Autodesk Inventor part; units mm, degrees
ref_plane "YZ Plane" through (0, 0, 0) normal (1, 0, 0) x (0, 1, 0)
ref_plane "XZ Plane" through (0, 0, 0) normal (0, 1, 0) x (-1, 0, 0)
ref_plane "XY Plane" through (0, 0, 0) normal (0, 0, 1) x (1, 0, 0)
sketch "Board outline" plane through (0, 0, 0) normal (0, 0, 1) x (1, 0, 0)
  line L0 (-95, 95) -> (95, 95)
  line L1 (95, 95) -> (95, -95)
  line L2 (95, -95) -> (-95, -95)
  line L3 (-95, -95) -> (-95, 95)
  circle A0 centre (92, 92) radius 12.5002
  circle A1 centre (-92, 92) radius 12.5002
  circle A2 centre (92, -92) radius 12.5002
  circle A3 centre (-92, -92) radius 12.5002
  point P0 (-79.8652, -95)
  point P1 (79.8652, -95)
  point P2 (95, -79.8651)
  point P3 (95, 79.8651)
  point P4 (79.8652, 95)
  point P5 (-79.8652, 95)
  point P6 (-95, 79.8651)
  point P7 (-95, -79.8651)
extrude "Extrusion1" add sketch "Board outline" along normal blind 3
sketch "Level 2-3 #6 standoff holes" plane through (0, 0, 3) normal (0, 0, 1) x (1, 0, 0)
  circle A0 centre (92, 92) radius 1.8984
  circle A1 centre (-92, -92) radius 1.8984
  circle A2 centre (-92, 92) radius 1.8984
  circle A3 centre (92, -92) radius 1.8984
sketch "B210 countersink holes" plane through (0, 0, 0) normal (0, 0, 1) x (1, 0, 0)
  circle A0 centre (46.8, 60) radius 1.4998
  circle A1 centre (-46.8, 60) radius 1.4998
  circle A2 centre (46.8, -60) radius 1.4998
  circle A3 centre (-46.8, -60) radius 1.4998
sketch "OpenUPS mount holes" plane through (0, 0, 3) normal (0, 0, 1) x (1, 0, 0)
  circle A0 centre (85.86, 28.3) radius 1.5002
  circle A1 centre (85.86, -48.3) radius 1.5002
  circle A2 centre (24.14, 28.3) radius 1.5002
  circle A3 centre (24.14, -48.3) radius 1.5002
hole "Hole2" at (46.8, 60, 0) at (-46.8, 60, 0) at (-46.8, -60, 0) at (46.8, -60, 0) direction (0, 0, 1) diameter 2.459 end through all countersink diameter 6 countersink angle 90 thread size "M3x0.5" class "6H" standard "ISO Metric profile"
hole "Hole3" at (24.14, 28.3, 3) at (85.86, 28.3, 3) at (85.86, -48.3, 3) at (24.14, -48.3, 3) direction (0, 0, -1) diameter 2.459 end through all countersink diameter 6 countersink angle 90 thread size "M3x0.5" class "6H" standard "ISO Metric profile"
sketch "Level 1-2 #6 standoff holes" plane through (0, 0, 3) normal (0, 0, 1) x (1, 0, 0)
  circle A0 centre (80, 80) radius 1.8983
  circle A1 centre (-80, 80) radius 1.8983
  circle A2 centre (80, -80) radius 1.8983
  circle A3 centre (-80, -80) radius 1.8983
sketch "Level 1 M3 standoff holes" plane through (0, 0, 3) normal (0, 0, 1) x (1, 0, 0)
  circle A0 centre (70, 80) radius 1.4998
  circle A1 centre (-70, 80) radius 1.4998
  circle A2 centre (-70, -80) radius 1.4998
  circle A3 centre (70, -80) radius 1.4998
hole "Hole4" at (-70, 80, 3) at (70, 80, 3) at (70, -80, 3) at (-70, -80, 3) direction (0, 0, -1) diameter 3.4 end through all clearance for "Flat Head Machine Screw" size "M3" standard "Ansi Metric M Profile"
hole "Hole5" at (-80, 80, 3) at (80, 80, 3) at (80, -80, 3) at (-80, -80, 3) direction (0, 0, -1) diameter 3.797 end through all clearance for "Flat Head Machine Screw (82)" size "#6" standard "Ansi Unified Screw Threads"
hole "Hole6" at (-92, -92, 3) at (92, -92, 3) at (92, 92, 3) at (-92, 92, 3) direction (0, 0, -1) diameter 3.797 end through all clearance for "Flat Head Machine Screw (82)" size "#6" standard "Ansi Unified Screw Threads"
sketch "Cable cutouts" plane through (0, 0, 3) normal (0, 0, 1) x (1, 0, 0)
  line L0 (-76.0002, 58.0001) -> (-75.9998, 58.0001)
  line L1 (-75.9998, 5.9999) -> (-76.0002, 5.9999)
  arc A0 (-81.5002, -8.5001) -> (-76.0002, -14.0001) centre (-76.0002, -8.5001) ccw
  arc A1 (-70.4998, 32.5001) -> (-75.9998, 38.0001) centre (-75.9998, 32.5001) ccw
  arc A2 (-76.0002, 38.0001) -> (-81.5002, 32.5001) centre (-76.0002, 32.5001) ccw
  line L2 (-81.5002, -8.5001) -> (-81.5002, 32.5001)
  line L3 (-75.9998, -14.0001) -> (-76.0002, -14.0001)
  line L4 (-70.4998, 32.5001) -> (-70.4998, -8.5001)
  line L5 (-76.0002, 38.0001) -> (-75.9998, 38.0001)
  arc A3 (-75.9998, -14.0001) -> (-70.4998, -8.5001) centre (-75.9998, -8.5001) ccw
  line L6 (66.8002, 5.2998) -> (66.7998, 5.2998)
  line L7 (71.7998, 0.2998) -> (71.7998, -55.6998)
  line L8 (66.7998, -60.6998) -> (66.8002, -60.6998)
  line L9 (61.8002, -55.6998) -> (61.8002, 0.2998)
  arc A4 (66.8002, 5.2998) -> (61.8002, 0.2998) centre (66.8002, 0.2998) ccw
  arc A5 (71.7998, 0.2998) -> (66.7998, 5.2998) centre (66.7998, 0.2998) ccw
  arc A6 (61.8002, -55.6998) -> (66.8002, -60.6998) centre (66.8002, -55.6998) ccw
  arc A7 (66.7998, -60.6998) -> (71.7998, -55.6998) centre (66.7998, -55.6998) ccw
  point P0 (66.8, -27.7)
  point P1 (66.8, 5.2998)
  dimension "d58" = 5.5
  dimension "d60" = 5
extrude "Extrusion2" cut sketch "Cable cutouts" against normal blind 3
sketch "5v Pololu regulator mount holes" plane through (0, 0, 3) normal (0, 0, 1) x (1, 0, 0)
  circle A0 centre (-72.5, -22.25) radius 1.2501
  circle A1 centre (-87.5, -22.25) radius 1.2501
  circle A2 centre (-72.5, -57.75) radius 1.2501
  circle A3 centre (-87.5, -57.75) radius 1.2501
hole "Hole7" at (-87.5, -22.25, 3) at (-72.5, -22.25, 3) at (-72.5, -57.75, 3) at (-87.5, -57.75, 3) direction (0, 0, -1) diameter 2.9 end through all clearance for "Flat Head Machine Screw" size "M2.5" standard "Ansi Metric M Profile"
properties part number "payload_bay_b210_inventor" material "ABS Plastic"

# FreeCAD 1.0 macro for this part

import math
import FreeCAD as App
import Part
import Sketcher

doc = App.newDocument("Part")
body = doc.addObject("PartDesign::Body", "Body")

sketch1 = body.newObject("Sketcher::SketchObject", "Sketch")
sketch1.AttachmentSupport = (doc.getObject("XY_Plane"), [""])
sketch1.MapMode = "FlatFace"
sketch1.addGeometry([
    Part.ArcOfCircle(Part.Circle(App.Vector(-92, 92, 0), App.Vector(0, 0, 1), 13), math.radians(14), math.radians(256)),
    Part.LineSegment(App.Vector(-95, 80, 0), App.Vector(-95, -80, 0)),
    Part.ArcOfCircle(Part.Circle(App.Vector(-92, -92, 0), App.Vector(0, 0, 1), 13), math.radians(104), math.radians(346)),
    Part.LineSegment(App.Vector(-80, -95, 0), App.Vector(80, -95, 0)),
    Part.ArcOfCircle(Part.Circle(App.Vector(92, -92, 0), App.Vector(0, 0, 1), 13), math.radians(-166), math.radians(76)),
    Part.LineSegment(App.Vector(95, -80, 0), App.Vector(95, 80, 0)),
    Part.ArcOfCircle(Part.Circle(App.Vector(92, 92, 0), App.Vector(0, 0, 1), 13), math.radians(-76), math.radians(166)),
    Part.LineSegment(App.Vector(80, 95, 0), App.Vector(-80, 95, 0)),
], False)
sketch1.addConstraint([
    Sketcher.Constraint("Coincident", 0, 2, 1, 1),
    Sketcher.Constraint("Coincident", 1, 2, 2, 1),
    Sketcher.Constraint("Coincident", 2, 2, 3, 1),
    Sketcher.Constraint("Coincident", 3, 2, 4, 1),
    Sketcher.Constraint("Coincident", 4, 2, 5, 1),
    Sketcher.Constraint("Coincident", 5, 2, 6, 1),
    Sketcher.Constraint("Coincident", 6, 2, 7, 1),
    Sketcher.Constraint("Coincident", 7, 2, 0, 1),
    Sketcher.Constraint("Vertical", 1),
    Sketcher.Constraint("Horizontal", 3),
    Sketcher.Constraint("Vertical", 5),
    Sketcher.Constraint("Horizontal", 7),
    Sketcher.Constraint("Equal", 0, 2),
    Sketcher.Constraint("Equal", 2, 4),
    Sketcher.Constraint("Equal", 4, 6),
    Sketcher.Constraint("Symmetric", 0, 3, 4, 3, -1, 1),
    Sketcher.Constraint("Symmetric", 2, 3, 6, 3, -1, 1),
    Sketcher.Constraint("Symmetric", 2, 3, 4, 3, -2),
    Sketcher.Constraint("Horizontal", 1, 2, 4, 2),
    Sketcher.Constraint("Vertical", 3, 2, 6, 2),
    Sketcher.Constraint("Equal", 7, 1),
    Sketcher.Constraint("DistanceX", 0, 3, -1, 1, 92.0),
    Sketcher.Constraint("DistanceY", -1, 1, 0, 3, 92.0),
    Sketcher.Constraint("DistanceX", 0, 2, -1, 1, 95.0),
    Sketcher.Constraint("Radius", 0, 12.5002),
])
pad1 = body.newObject("PartDesign::Pad", "Pad")
pad1.Profile = sketch1
pad1.Length = 3

sketch2 = body.newObject("Sketcher::SketchObject", "Sketch001")
sketch2.AttachmentSupport = (doc.getObject("XY_Plane"), [""])
sketch2.MapMode = "FlatFace"
sketch2.addGeometry([
    Part.Circle(App.Vector(46.8, 60, 0), App.Vector(0, 0, 1), 1.2),
    Part.Circle(App.Vector(-46.8, 60, 0), App.Vector(0, 0, 1), 1.2),
    Part.Circle(App.Vector(-46.8, -60, 0), App.Vector(0, 0, 1), 1.2),
    Part.Circle(App.Vector(46.8, -60, 0), App.Vector(0, 0, 1), 1.2),
], False)
sketch2.addConstraint([
    Sketcher.Constraint("Equal", 0, 1),
    Sketcher.Constraint("Equal", 1, 2),
    Sketcher.Constraint("Equal", 2, 3),
    Sketcher.Constraint("Symmetric", 0, 3, 2, 3, -1, 1),
    Sketcher.Constraint("Symmetric", 1, 3, 3, 3, -1, 1),
    Sketcher.Constraint("Symmetric", 0, 3, 1, 3, -2),
    Sketcher.Constraint("Diameter", 0, 2.459),
    Sketcher.Constraint("DistanceY", -1, 1, 0, 3, 60.0),
    Sketcher.Constraint("DistanceX", -1, 1, 0, 3, 46.8),
])
doc.recompute()
hole = body.newObject("PartDesign::Hole", "Hole")
hole.Profile = sketch2
hole.ThreadType = "None"
hole.Diameter = 2.459
hole.DepthType = "ThroughAll"
hole.HoleCutType = "Countersink"
hole.HoleCutDiameter = 6
hole.HoleCutCountersinkAngle = 90
hole.Reversed = True

sketch3 = body.newObject("Sketcher::SketchObject", "Sketch002")
sketch3.AttachmentSupport = (doc.getObject("XY_Plane"), [""])
sketch3.MapMode = "FlatFace"
sketch3.AttachmentOffset = App.Placement(App.Vector(0, 0, 3), App.Rotation())
sketch3.addGeometry([
    Part.Circle(App.Vector(24.1, 28.3, 0), App.Vector(0, 0, 1), 1.2),
    Part.Circle(App.Vector(85.9, 28.3, 0), App.Vector(0, 0, 1), 1.2),
    Part.Circle(App.Vector(85.9, -48.3, 0), App.Vector(0, 0, 1), 1.2),
    Part.Circle(App.Vector(24.1, -48.3, 0), App.Vector(0, 0, 1), 1.2),
], False)
sketch3.addConstraint([
    Sketcher.Constraint("Equal", 0, 1),
    Sketcher.Constraint("Equal", 1, 2),
    Sketcher.Constraint("Equal", 2, 3),
    Sketcher.Constraint("Horizontal", 0, 3, 1, 3),
    Sketcher.Constraint("Horizontal", 2, 3, 3, 3),
    Sketcher.Constraint("Vertical", 1, 3, 2, 3),
    Sketcher.Constraint("Vertical", 0, 3, 3, 3),
    Sketcher.Constraint("Diameter", 0, 2.459),
    Sketcher.Constraint("DistanceY", -1, 1, 0, 3, 28.3),
    Sketcher.Constraint("DistanceY", 2, 3, -1, 1, 48.3),
    Sketcher.Constraint("DistanceX", -1, 1, 0, 3, 24.14),
    Sketcher.Constraint("DistanceX", -1, 1, 1, 3, 85.86),
])
doc.recompute()
hole2 = body.newObject("PartDesign::Hole", "Hole001")
hole2.Profile = sketch3
hole2.ThreadType = "None"
hole2.Diameter = 2.459
hole2.DepthType = "ThroughAll"
hole2.HoleCutType = "Countersink"
hole2.HoleCutDiameter = 6
hole2.HoleCutCountersinkAngle = 90

sketch4 = body.newObject("Sketcher::SketchObject", "Sketch003")
sketch4.AttachmentSupport = (doc.getObject("XY_Plane"), [""])
sketch4.MapMode = "FlatFace"
sketch4.AttachmentOffset = App.Placement(App.Vector(0, 0, 3), App.Rotation())
sketch4.addGeometry([
    Part.Circle(App.Vector(-70, 80, 0), App.Vector(0, 0, 1), 1.7),
    Part.Circle(App.Vector(70, 80, 0), App.Vector(0, 0, 1), 1.7),
    Part.Circle(App.Vector(70, -80, 0), App.Vector(0, 0, 1), 1.7),
    Part.Circle(App.Vector(-70, -80, 0), App.Vector(0, 0, 1), 1.7),
], False)
sketch4.addConstraint([
    Sketcher.Constraint("Equal", 0, 1),
    Sketcher.Constraint("Equal", 1, 2),
    Sketcher.Constraint("Equal", 2, 3),
    Sketcher.Constraint("Symmetric", 0, 3, 2, 3, -1, 1),
    Sketcher.Constraint("Symmetric", 1, 3, 3, 3, -1, 1),
    Sketcher.Constraint("Symmetric", 0, 3, 1, 3, -2),
    Sketcher.Constraint("Diameter", 0, 3.4),
    Sketcher.Constraint("DistanceX", 0, 3, -1, 1, 70.0),
    Sketcher.Constraint("DistanceY", -1, 1, 0, 3, 80.0),
])
doc.recompute()
hole3 = body.newObject("PartDesign::Hole", "Hole002")
hole3.Profile = sketch4
hole3.ThreadType = "None"
hole3.Diameter = 3.4
hole3.DepthType = "ThroughAll"

sketch5 = body.newObject("Sketcher::SketchObject", "Sketch004")
sketch5.AttachmentSupport = (doc.getObject("XY_Plane"), [""])
sketch5.MapMode = "FlatFace"
sketch5.AttachmentOffset = App.Placement(App.Vector(0, 0, 3), App.Rotation())
sketch5.addGeometry([
    Part.Circle(App.Vector(-80, 80, 0), App.Vector(0, 0, 1), 1.9),
    Part.Circle(App.Vector(80, 80, 0), App.Vector(0, 0, 1), 1.9),
    Part.Circle(App.Vector(80, -80, 0), App.Vector(0, 0, 1), 1.9),
    Part.Circle(App.Vector(-80, -80, 0), App.Vector(0, 0, 1), 1.9),
], False)
sketch5.addConstraint([
    Sketcher.Constraint("Equal", 0, 1),
    Sketcher.Constraint("Equal", 1, 2),
    Sketcher.Constraint("Equal", 2, 3),
    Sketcher.Constraint("Symmetric", 0, 3, 2, 3, -1, 1),
    Sketcher.Constraint("Symmetric", 1, 3, 3, 3, -1, 1),
    Sketcher.Constraint("Symmetric", 0, 3, 1, 3, -2),
    Sketcher.Constraint("Diameter", 0, 3.797),
    Sketcher.Constraint("DistanceX", 0, 3, -1, 1, 80.0),
    Sketcher.Constraint("DistanceY", -1, 1, 0, 3, 80.0),
])
doc.recompute()
hole4 = body.newObject("PartDesign::Hole", "Hole003")
hole4.Profile = sketch5
hole4.ThreadType = "None"
hole4.Diameter = 3.797
hole4.DepthType = "ThroughAll"

sketch6 = body.newObject("Sketcher::SketchObject", "Sketch005")
sketch6.AttachmentSupport = (doc.getObject("XY_Plane"), [""])
sketch6.MapMode = "FlatFace"
sketch6.AttachmentOffset = App.Placement(App.Vector(0, 0, 3), App.Rotation())
sketch6.addGeometry([
    Part.Circle(App.Vector(-92, -92, 0), App.Vector(0, 0, 1), 1.9),
    Part.Circle(App.Vector(92, -92, 0), App.Vector(0, 0, 1), 1.9),
    Part.Circle(App.Vector(92, 92, 0), App.Vector(0, 0, 1), 1.9),
    Part.Circle(App.Vector(-92, 92, 0), App.Vector(0, 0, 1), 1.9),
], False)
sketch6.addConstraint([
    Sketcher.Constraint("Equal", 0, 1),
    Sketcher.Constraint("Equal", 1, 2),
    Sketcher.Constraint("Equal", 2, 3),
    Sketcher.Constraint("Symmetric", 0, 3, 2, 3, -1, 1),
    Sketcher.Constraint("Symmetric", 1, 3, 3, 3, -1, 1),
    Sketcher.Constraint("Symmetric", 0, 3, 1, 3, -2),
    Sketcher.Constraint("Diameter", 0, 3.797),
    Sketcher.Constraint("DistanceX", 0, 3, -1, 1, 92.0),
    Sketcher.Constraint("DistanceY", 0, 3, -1, 1, 92.0),
])
doc.recompute()
hole5 = body.newObject("PartDesign::Hole", "Hole004")
hole5.Profile = sketch6
hole5.ThreadType = "None"
hole5.Diameter = 3.797
hole5.DepthType = "ThroughAll"

sketch7 = body.newObject("Sketcher::SketchObject", "Sketch006")
sketch7.AttachmentSupport = (doc.getObject("XY_Plane"), [""])
sketch7.MapMode = "FlatFace"
sketch7.AttachmentOffset = App.Placement(App.Vector(0, 0, 3), App.Rotation())
sketch7.addGeometry([
    Part.LineSegment(App.Vector(-82, 33, 0), App.Vector(-82, -9, 0)),
    Part.ArcOfCircle(Part.Circle(App.Vector(-76, -9, 0), App.Vector(0, 0, 1), 6), math.radians(180), math.radians(270)),
    Part.ArcOfCircle(Part.Circle(App.Vector(-76, -9, 0), App.Vector(0, 0, 1), 6), math.radians(-90), math.radians(0)),
    Part.LineSegment(App.Vector(-70, -9, 0), App.Vector(-70, 33, 0)),
    Part.ArcOfCircle(Part.Circle(App.Vector(-76, 33, 0), App.Vector(0, 0, 1), 6), math.radians(0), math.radians(90)),
    Part.ArcOfCircle(Part.Circle(App.Vector(-76, 33, 0), App.Vector(0, 0, 1), 6), math.radians(90), math.radians(180)),
    Part.LineSegment(App.Vector(72, -56, 0), App.Vector(72, 0, 0)),
    Part.ArcOfCircle(Part.Circle(App.Vector(67, 0, 0), App.Vector(0, 0, 1), 5), math.radians(0), math.radians(90)),
    Part.ArcOfCircle(Part.Circle(App.Vector(67, 0, 0), App.Vector(0, 0, 1), 5), math.radians(90), math.radians(180)),
    Part.LineSegment(App.Vector(62, 0, 0), App.Vector(62, -56, 0)),
    Part.ArcOfCircle(Part.Circle(App.Vector(67, -56, 0), App.Vector(0, 0, 1), 5), math.radians(180), math.radians(270)),
    Part.ArcOfCircle(Part.Circle(App.Vector(67, -56, 0), App.Vector(0, 0, 1), 5), math.radians(-90), math.radians(0)),
], False)
sketch7.addConstraint([
    Sketcher.Constraint("Tangent", 0, 2, 1, 1),
    Sketcher.Constraint("Tangent", 1, 2, 2, 1),
    Sketcher.Constraint("Tangent", 2, 2, 3, 1),
    Sketcher.Constraint("Tangent", 3, 2, 4, 1),
    Sketcher.Constraint("Tangent", 4, 2, 5, 1),
    Sketcher.Constraint("Tangent", 5, 2, 0, 1),
    Sketcher.Constraint("Tangent", 6, 2, 7, 1),
    Sketcher.Constraint("Tangent", 7, 2, 8, 1),
    Sketcher.Constraint("Tangent", 8, 2, 9, 1),
    Sketcher.Constraint("Tangent", 9, 2, 10, 1),
    Sketcher.Constraint("Tangent", 10, 2, 11, 1),
    Sketcher.Constraint("Tangent", 11, 2, 6, 1),
    Sketcher.Constraint("Vertical", 0),
    Sketcher.Constraint("Vertical", 3),
    Sketcher.Constraint("Vertical", 6),
    Sketcher.Constraint("Vertical", 9),
    Sketcher.Constraint("Equal", 1, 2),
    Sketcher.Constraint("Equal", 2, 4),
    Sketcher.Constraint("Equal", 7, 8),
    Sketcher.Constraint("Equal", 8, 10),
    Sketcher.Constraint("Vertical", 5, 3, 1, 2),
    Sketcher.Constraint("Vertical", 2, 3, 4, 2),
    Sketcher.Constraint("Vertical", 10, 3, 7, 2),
    Sketcher.Constraint("Vertical", 11, 3, 10, 2),
    Sketcher.Constraint("Radius", 7, 5.0),
    Sketcher.Constraint("Radius", 1, 5.5),
    Sketcher.Constraint("DistanceY", 1, 2, -1, 1, 14.0),
    Sketcher.Constraint("DistanceY", -1, 1, 4, 2, 38.0),
    Sketcher.Constraint("DistanceY", 2, 3, 7, 3, 8.8),
    Sketcher.Constraint("DistanceX", 1, 3, 7, 3, 142.8),
    Sketcher.Constraint("DistanceY", 10, 3, 4, 3, 88.2),
    Sketcher.Constraint("DistanceX", 1, 3, -1, 1, 76.0002),
])
pocket1 = body.newObject("PartDesign::Pocket", "Pocket")
pocket1.Profile = sketch7
pocket1.Length = 3

sketch8 = body.newObject("Sketcher::SketchObject", "Sketch007")
sketch8.AttachmentSupport = (doc.getObject("XY_Plane"), [""])
sketch8.MapMode = "FlatFace"
sketch8.AttachmentOffset = App.Placement(App.Vector(0, 0, 3), App.Rotation())
sketch8.addGeometry([
    Part.Circle(App.Vector(-87.5, -22.2, 0), App.Vector(0, 0, 1), 1.4),
    Part.Circle(App.Vector(-72.5, -22.2, 0), App.Vector(0, 0, 1), 1.4),
    Part.Circle(App.Vector(-72.5, -57.8, 0), App.Vector(0, 0, 1), 1.4),
    Part.Circle(App.Vector(-87.5, -57.8, 0), App.Vector(0, 0, 1), 1.4),
], False)
sketch8.addConstraint([
    Sketcher.Constraint("Equal", 0, 1),
    Sketcher.Constraint("Equal", 1, 2),
    Sketcher.Constraint("Equal", 2, 3),
    Sketcher.Constraint("Horizontal", 0, 3, 1, 3),
    Sketcher.Constraint("Horizontal", 2, 3, 3, 3),
    Sketcher.Constraint("Vertical", 1, 3, 2, 3),
    Sketcher.Constraint("Vertical", 0, 3, 3, 3),
    Sketcher.Constraint("Diameter", 0, 2.9),
    Sketcher.Constraint("DistanceX", 0, 3, 1, 3, 15.0),
    Sketcher.Constraint("DistanceX", 0, 3, -1, 1, 87.5),
    Sketcher.Constraint("DistanceY", 2, 3, 1, 3, 35.5),
    Sketcher.Constraint("DistanceY", 0, 3, -1, 1, 22.25),
])
doc.recompute()
hole6 = body.newObject("PartDesign::Hole", "Hole005")
hole6.Profile = sketch8
hole6.ThreadType = "None"
hole6.Diameter = 2.9
hole6.DepthType = "ThroughAll"

doc.recompute()
